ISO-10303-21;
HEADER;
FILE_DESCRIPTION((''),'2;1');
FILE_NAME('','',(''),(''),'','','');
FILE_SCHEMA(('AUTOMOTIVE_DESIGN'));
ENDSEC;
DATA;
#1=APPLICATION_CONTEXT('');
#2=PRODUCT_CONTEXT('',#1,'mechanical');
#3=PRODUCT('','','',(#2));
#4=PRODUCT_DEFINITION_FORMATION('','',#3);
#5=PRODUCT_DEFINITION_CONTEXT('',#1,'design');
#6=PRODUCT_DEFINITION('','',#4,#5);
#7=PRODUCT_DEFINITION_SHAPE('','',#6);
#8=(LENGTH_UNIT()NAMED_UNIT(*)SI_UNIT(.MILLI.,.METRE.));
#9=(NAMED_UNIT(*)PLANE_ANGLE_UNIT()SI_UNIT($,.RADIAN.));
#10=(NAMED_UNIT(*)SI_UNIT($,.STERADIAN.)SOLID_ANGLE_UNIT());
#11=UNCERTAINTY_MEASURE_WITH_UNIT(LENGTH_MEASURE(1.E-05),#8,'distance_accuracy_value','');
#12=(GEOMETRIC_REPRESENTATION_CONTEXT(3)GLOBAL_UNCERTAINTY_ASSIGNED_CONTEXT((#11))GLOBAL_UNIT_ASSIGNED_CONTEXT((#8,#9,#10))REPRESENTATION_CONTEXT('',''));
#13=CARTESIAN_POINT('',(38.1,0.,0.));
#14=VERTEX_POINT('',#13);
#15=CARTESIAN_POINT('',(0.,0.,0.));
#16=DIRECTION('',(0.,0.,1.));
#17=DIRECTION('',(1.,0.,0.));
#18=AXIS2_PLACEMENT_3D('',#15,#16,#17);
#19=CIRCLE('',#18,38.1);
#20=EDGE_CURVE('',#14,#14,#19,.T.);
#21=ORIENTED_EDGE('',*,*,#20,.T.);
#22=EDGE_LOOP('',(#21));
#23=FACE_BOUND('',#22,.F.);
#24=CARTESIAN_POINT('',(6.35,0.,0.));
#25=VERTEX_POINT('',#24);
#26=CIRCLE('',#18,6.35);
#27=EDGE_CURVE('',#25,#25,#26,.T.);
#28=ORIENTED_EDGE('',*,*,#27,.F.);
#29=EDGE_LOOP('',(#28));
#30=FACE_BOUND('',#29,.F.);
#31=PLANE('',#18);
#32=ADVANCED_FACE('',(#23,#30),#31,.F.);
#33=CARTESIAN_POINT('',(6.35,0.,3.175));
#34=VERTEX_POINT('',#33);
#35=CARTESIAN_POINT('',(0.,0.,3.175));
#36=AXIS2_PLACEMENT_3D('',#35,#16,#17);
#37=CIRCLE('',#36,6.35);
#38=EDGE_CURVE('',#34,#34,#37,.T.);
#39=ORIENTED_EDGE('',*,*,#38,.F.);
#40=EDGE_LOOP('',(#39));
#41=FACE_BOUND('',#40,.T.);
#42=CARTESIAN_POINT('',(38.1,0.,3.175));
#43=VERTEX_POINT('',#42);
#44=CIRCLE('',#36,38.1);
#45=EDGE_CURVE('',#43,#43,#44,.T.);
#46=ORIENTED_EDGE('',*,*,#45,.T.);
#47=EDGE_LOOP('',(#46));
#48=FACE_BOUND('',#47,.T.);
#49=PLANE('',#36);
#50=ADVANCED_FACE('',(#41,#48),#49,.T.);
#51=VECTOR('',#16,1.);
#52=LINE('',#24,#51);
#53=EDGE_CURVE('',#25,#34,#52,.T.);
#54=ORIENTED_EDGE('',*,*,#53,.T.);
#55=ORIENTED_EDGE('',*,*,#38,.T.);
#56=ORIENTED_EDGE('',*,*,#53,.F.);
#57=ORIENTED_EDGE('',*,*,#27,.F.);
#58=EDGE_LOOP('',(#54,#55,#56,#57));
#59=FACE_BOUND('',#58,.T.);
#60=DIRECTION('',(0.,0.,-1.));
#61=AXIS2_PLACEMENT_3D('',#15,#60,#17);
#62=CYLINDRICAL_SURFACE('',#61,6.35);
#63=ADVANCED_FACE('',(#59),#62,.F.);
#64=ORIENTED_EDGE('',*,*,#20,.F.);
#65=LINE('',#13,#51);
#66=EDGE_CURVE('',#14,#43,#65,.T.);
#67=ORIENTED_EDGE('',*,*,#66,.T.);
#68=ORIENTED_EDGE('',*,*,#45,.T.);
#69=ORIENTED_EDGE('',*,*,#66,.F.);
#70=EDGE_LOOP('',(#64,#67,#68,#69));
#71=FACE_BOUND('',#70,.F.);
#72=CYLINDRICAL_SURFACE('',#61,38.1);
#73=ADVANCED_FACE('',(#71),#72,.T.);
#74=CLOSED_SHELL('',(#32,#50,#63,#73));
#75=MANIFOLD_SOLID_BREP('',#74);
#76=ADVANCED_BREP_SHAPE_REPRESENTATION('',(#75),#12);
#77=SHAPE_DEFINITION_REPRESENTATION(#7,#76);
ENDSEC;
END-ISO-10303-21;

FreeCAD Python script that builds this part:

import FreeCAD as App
import Part
import Sketcher

V = App.Vector
Q = App.Units.Quantity

doc = App.newDocument("Part")
params = doc.addObject("Spreadsheet::Sheet", "Params")
for row, (alias, value) in enumerate([
    ("sketch1_diameter", "3 in"),
    ("sketch1_diameter2", "0.5 in"),
    ("pad1_length", "0.125 in"),
], start=1):
    params.set(f"A{row}", alias)
    params.set(f"B{row}", "=" + value)
    params.setAlias(f"B{row}", alias)

body = doc.addObject("PartDesign::Body", "Body")

sketch1 = doc.addObject("Sketcher::SketchObject", "Sketch")
body.addObject(sketch1)
sketch1.AttachmentSupport = (doc.XY_Plane, [""])
sketch1.MapMode = "FlatFace"
sketch1.addGeometry(Part.Circle(V(0, 0, 0), V(0, 0, 1), 38.1), False)
sketch1.addGeometry(Part.Circle(V(0, 0, 0), V(0, 0, 1), 6.35), False)
sketch1.addConstraint(Sketcher.Constraint("Coincident", 0, 3, -1, 1))
sketch1.addConstraint(Sketcher.Constraint("Coincident", 1, 3, -1, 1))
sketch1.addConstraint(Sketcher.Constraint("Diameter", 0, Q("3 in")))
sketch1.addConstraint(Sketcher.Constraint("Diameter", 1, Q("0.5 in")))
sketch1.setExpression("Constraints[2]", "Params.sketch1_diameter")
sketch1.setExpression("Constraints[3]", "Params.sketch1_diameter2")
pad1 = doc.addObject("PartDesign::Pad", "Pad")
body.addObject(pad1)
pad1.Profile = sketch1
pad1.setExpression("Length", "Params.pad1_length")

doc.recompute()
